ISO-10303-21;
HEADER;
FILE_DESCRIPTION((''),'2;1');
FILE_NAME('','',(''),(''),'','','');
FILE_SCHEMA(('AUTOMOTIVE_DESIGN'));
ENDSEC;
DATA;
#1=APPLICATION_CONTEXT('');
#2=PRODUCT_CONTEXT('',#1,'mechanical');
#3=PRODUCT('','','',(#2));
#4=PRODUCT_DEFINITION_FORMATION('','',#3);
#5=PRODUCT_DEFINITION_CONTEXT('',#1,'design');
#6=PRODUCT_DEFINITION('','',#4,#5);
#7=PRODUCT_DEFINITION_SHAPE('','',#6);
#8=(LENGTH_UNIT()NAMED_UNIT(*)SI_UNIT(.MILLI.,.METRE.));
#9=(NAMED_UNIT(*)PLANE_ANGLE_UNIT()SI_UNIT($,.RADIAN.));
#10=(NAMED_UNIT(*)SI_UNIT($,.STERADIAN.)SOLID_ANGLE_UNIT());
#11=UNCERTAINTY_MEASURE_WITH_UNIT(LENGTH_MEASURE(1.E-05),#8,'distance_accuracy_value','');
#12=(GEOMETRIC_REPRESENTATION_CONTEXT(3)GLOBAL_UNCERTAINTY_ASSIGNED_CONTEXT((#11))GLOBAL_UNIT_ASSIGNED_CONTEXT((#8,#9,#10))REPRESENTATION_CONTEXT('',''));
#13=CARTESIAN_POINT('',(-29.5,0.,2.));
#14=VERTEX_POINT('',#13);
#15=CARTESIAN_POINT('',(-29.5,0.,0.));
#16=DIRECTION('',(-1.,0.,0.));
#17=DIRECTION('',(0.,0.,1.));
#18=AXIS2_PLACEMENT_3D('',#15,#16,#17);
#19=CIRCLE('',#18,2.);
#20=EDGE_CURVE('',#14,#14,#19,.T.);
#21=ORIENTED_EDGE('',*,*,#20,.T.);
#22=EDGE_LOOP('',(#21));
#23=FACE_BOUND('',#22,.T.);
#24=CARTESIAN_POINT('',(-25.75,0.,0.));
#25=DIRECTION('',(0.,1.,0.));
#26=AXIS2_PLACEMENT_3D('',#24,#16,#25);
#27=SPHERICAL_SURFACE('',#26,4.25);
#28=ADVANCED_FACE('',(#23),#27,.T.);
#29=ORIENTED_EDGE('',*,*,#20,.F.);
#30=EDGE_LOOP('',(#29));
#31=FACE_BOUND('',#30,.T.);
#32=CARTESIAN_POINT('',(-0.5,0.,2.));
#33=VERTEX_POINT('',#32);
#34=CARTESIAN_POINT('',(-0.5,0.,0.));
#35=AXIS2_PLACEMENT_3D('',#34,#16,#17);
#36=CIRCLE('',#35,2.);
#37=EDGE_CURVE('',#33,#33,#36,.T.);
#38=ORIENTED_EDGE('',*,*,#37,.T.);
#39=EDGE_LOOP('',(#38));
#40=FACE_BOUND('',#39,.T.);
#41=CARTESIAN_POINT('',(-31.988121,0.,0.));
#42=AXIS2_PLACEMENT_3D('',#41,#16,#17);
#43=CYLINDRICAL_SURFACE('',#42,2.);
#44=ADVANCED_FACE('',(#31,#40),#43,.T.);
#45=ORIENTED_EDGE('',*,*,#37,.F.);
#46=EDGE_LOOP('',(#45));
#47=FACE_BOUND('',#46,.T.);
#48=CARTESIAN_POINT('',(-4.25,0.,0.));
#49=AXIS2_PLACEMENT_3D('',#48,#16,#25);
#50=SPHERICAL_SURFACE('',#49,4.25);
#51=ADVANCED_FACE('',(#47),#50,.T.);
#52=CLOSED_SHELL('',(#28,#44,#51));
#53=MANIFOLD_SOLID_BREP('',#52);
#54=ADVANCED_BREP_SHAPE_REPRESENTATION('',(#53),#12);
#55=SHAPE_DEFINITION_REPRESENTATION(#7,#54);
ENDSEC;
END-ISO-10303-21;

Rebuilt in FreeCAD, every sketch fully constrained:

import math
import FreeCAD as App
import Part
import Sketcher

V = App.Vector
Q = App.Units.Quantity

doc = App.newDocument("Part")
body = doc.addObject("PartDesign::Body", "Body")

# Sketch on XY plane
sketch1 = body.newObject("Sketcher::SketchObject", "Sketch")
sketch1.AttachmentSupport = (doc.getObject("XY_Plane"), [""])
sketch1.MapMode = "FlatFace"
sketch1.addGeometry([
    Part.LineSegment(V(-0.5, 2, 0), V(-29.5, 2, 0)),
    Part.ArcOfCircle(Part.Circle(V(-25.8, 0, 0), V(0, 0, 1), 4.2), math.radians(152), math.radians(180)),
    Part.LineSegment(V(-30, 0, 0), V(0, 0, 0)),
    Part.ArcOfCircle(Part.Circle(V(-4.2, 0, 0), V(0, 0, 1), 4.2), math.radians(0), math.radians(28)),
], False)
sketch1.addConstraint([
    Sketcher.Constraint("Coincident", 0, 2, 1, 1),
    Sketcher.Constraint("Coincident", 1, 2, 2, 1),
    Sketcher.Constraint("Coincident", 2, 2, 3, 1),
    Sketcher.Constraint("Coincident", 3, 2, 0, 1),
    Sketcher.Constraint("Horizontal", 0),
    Sketcher.Constraint("Horizontal", 2),
    Sketcher.Constraint("Coincident", 2, 2, -1, 1),
    Sketcher.Constraint("Equal", 1, 3),
    Sketcher.Constraint("PointOnObject", 1, 3, -1),
    Sketcher.Constraint("PointOnObject", 3, 3, -1),
    Sketcher.Constraint("DistanceX", 0, 2, 0, 1, Q("29 mm")),
    Sketcher.Constraint("DistanceX", 2, 1, 2, 2, Q("30 mm")),
    Sketcher.Constraint("Radius", 1, Q("4.25 mm")),
])
revolution = body.newObject("PartDesign::Revolution", "Revolution")
revolution.Profile = sketch1
revolution.ReferenceAxis = (sketch1, ["H_Axis"])
revolution.Angle = 360

doc.recompute()
